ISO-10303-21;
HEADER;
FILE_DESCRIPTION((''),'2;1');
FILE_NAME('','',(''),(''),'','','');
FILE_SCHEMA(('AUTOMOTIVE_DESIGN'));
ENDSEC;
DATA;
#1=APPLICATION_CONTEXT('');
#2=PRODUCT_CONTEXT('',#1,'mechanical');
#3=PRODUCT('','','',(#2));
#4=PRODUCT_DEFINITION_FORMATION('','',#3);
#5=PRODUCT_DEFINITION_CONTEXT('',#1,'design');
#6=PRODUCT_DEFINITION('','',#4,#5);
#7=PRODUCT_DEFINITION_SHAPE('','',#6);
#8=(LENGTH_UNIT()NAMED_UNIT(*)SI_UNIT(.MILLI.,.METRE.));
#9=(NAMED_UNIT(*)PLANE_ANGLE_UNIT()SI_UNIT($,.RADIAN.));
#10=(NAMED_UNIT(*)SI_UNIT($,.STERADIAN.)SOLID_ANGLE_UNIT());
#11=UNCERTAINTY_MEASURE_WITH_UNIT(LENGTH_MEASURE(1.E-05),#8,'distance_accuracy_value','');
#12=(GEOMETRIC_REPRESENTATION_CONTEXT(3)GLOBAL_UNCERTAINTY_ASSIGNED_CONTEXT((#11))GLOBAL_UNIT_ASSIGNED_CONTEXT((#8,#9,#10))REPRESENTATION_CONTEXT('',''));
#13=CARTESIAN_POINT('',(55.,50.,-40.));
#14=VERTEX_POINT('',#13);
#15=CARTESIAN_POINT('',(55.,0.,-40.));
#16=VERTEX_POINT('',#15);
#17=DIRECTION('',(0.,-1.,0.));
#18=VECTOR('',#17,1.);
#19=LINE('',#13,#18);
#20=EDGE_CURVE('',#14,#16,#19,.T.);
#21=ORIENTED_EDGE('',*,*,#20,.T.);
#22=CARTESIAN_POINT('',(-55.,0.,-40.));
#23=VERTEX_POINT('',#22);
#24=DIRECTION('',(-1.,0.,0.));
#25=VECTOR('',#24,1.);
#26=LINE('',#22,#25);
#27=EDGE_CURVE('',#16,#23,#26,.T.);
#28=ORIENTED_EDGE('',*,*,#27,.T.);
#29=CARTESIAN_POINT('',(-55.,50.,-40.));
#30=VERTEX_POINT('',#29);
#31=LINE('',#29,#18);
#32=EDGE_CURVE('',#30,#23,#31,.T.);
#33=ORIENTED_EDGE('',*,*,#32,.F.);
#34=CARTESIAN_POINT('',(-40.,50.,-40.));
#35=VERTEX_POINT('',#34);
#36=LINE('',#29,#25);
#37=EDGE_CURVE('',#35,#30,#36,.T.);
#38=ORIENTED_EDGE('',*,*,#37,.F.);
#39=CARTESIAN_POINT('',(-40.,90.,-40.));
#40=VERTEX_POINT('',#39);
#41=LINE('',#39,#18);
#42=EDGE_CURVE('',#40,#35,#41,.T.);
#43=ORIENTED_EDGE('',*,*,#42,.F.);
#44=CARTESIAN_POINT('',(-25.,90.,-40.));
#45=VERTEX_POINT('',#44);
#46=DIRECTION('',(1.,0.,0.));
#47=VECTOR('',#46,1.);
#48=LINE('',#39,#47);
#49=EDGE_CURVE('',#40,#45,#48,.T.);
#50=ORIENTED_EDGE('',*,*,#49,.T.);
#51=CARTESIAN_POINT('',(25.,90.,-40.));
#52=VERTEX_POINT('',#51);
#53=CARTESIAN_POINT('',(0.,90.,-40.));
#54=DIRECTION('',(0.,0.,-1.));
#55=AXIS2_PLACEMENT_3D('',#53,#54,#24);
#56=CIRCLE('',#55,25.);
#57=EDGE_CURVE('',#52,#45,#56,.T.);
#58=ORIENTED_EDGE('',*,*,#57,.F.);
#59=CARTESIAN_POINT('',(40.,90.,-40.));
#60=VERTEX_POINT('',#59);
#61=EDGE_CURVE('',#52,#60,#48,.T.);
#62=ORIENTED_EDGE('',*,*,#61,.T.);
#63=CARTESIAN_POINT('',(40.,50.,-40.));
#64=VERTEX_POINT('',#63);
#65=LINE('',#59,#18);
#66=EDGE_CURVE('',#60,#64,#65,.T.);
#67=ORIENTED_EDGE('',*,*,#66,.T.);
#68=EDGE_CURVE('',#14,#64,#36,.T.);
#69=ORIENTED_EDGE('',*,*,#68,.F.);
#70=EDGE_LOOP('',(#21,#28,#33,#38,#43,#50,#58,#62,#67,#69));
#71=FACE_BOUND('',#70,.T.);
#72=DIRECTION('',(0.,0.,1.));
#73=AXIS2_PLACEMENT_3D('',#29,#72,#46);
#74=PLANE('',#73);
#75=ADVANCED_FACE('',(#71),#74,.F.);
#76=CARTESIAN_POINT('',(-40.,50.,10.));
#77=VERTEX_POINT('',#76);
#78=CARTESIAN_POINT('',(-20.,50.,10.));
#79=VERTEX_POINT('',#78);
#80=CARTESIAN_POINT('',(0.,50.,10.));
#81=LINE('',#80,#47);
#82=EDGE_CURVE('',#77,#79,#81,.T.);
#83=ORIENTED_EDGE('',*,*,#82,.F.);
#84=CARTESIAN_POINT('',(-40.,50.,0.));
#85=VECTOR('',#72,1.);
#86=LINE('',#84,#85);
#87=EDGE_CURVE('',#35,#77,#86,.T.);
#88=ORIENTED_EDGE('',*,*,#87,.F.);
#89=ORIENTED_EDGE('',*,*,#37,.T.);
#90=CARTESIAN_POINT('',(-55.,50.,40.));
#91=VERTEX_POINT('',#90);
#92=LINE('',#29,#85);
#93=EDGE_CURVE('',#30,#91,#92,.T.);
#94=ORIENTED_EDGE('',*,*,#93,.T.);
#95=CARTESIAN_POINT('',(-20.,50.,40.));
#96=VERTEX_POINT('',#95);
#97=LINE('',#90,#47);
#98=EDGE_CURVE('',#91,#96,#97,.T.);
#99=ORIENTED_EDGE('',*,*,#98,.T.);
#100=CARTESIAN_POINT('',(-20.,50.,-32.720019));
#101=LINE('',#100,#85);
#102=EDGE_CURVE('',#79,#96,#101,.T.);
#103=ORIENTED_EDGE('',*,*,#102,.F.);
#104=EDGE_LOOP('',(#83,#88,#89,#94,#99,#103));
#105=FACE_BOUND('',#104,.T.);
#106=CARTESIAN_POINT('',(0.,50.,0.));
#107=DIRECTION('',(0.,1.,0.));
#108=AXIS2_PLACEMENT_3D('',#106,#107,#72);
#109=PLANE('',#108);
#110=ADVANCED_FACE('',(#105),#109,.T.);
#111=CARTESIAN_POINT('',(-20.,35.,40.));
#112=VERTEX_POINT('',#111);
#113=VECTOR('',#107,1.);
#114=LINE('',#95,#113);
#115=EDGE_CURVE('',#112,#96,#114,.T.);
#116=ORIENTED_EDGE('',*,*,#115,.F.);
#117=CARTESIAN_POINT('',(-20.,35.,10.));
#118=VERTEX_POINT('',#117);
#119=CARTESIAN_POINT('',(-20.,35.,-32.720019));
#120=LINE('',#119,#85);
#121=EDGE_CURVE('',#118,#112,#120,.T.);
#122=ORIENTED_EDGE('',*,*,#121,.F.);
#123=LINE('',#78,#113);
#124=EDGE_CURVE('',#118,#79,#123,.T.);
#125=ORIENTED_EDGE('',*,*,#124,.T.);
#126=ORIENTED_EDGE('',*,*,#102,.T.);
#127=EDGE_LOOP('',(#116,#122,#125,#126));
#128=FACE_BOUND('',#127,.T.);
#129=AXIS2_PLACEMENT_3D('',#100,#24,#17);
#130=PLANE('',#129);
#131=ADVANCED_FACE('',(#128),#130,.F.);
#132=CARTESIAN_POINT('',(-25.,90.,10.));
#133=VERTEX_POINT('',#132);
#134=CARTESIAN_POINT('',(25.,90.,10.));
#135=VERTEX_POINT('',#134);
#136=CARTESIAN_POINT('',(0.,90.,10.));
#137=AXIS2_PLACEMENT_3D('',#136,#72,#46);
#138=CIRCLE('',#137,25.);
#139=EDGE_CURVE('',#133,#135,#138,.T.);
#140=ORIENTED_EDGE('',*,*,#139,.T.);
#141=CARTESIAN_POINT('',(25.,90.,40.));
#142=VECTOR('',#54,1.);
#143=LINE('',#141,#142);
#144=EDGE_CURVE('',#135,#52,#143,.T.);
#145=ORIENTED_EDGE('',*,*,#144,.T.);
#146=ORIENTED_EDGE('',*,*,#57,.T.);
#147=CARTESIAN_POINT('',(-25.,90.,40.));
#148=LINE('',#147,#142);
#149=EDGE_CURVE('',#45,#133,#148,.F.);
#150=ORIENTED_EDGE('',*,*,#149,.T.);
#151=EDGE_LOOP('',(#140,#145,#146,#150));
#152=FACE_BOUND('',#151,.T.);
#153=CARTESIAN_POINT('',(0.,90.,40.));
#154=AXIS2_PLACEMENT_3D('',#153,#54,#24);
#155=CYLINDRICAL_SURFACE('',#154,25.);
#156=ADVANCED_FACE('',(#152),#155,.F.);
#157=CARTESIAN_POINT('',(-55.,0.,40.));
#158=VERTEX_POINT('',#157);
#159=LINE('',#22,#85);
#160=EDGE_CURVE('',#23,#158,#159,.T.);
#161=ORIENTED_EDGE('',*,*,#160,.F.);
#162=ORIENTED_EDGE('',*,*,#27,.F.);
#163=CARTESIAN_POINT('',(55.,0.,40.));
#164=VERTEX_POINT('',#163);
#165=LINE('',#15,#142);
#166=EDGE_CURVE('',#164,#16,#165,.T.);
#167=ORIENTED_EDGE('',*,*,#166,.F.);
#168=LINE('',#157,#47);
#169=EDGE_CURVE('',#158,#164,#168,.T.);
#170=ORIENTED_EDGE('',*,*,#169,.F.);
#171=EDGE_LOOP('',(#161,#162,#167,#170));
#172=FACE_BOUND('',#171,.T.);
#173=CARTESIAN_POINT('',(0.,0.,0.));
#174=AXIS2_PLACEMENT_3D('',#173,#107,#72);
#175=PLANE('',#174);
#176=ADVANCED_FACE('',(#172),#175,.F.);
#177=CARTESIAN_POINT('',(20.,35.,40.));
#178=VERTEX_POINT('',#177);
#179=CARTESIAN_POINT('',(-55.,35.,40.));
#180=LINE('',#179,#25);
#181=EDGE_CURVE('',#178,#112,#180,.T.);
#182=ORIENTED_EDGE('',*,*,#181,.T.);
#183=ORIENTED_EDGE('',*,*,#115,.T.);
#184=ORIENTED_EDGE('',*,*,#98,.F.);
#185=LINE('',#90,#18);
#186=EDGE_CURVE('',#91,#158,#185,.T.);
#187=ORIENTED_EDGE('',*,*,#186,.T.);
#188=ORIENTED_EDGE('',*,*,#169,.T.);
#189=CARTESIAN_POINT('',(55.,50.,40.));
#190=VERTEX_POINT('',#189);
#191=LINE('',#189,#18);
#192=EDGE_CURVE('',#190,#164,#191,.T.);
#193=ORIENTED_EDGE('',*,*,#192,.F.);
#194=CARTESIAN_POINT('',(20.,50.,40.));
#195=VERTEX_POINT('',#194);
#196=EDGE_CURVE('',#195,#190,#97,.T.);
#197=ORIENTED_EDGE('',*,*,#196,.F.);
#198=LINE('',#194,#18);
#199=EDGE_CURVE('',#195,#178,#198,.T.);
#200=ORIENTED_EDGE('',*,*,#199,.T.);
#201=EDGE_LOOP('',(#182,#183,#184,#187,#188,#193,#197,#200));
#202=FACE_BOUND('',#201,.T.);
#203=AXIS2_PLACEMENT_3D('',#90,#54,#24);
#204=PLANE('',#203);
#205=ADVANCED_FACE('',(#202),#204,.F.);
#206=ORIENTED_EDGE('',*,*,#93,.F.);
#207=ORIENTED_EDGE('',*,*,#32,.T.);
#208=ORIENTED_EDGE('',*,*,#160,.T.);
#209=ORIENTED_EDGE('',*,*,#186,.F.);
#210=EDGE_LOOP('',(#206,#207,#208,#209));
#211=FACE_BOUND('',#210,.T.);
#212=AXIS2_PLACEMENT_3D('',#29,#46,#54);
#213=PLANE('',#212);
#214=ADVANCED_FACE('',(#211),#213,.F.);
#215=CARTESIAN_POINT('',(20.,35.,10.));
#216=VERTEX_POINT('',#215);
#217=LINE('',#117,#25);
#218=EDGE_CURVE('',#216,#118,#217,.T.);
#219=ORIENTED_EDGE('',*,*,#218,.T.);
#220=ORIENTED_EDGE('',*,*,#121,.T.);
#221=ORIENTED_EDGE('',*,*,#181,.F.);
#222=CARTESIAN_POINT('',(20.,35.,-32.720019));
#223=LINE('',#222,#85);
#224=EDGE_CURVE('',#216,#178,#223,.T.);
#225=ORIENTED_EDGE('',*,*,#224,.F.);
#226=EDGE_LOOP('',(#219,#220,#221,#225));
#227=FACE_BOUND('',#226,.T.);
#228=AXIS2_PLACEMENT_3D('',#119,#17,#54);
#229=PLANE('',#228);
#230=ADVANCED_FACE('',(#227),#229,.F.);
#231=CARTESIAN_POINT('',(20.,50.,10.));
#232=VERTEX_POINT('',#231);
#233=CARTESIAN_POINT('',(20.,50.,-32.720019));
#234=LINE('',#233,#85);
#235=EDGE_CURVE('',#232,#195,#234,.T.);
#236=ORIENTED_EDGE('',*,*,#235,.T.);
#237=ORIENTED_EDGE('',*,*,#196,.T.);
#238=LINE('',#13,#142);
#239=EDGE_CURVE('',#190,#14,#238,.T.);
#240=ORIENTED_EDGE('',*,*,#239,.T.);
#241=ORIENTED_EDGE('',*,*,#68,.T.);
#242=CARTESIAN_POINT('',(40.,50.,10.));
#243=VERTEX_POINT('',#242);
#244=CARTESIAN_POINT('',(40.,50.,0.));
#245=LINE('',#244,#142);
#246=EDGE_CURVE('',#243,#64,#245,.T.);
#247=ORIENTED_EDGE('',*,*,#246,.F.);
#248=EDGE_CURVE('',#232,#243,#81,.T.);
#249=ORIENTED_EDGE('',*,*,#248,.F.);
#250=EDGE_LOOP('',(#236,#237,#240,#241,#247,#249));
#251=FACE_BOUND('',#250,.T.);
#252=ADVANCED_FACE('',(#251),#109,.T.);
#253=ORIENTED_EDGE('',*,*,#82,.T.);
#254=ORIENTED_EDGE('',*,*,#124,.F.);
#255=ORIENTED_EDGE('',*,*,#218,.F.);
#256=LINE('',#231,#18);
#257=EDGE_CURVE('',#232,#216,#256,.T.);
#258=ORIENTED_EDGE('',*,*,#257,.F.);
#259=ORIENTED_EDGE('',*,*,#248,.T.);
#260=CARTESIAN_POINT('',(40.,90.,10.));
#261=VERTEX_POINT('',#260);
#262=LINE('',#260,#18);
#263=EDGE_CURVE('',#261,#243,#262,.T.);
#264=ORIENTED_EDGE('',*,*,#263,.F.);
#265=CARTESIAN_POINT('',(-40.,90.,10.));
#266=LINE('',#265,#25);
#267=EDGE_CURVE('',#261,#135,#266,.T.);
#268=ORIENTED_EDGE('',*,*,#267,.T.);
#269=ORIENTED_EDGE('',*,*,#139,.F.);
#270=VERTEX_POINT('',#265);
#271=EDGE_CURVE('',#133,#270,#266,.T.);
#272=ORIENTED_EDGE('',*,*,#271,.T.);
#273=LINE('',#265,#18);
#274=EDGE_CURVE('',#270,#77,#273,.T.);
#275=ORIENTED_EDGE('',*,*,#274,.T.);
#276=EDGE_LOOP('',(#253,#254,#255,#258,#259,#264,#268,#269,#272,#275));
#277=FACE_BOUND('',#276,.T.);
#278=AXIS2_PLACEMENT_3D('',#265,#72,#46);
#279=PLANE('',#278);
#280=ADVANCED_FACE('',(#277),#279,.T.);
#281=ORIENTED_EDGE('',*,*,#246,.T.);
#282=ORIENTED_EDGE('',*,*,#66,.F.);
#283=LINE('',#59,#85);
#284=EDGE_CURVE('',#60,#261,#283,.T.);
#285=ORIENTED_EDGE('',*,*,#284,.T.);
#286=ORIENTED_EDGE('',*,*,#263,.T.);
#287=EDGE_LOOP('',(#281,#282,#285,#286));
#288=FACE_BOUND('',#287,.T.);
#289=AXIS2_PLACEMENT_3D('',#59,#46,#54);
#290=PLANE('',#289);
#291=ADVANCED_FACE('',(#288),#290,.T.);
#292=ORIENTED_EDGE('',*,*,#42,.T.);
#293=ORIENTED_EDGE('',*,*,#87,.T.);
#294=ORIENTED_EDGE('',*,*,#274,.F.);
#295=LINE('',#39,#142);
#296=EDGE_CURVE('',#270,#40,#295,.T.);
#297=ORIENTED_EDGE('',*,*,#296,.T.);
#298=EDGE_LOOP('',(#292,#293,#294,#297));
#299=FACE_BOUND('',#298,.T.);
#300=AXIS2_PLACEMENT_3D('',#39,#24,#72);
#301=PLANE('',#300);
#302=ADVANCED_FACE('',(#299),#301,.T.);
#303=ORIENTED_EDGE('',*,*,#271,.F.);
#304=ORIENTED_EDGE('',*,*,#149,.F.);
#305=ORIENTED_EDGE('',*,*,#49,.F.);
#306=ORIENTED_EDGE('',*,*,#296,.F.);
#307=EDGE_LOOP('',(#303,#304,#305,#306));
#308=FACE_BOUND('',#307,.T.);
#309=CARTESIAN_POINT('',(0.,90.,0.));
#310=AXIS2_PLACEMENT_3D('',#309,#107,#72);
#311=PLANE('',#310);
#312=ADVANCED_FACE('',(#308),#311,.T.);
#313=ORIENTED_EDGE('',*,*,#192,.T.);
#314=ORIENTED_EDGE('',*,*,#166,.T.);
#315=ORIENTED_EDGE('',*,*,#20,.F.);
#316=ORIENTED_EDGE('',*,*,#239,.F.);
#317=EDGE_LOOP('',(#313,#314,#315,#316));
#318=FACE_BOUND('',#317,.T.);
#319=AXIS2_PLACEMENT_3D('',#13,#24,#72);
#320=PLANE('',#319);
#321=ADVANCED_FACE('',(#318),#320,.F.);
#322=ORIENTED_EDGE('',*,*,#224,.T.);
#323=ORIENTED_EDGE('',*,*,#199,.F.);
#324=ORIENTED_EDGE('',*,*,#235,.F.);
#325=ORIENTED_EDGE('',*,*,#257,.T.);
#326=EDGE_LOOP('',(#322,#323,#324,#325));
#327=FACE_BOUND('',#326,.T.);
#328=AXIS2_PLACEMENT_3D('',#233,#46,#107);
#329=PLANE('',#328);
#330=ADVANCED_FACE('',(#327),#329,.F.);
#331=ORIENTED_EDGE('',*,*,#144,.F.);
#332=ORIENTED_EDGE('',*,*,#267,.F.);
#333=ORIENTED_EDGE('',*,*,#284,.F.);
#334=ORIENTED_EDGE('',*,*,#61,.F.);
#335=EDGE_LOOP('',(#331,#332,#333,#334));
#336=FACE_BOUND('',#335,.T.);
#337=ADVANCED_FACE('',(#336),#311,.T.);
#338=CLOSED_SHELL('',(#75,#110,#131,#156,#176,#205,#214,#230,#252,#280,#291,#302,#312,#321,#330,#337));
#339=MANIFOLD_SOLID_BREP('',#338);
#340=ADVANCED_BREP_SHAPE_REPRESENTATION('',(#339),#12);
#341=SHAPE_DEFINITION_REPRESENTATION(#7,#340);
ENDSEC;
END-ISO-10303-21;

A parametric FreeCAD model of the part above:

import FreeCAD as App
import Part
import Sketcher
from FreeCAD import Vector
Q = App.Units.Quantity


def add_polygon(sketch, points):
    """Adds a closed chain of lines whose ends are joined by coincident constraints."""
    first, n = sketch.GeometryCount, len(points)
    for a, b in zip(points, points[1:] + points[:1]):
        sketch.addGeometry(Part.LineSegment(App.Vector(*a, 0), App.Vector(*b, 0)), False)
    for i in range(n):
        sketch.addConstraint(Sketcher.Constraint("Coincident", first + i, 2, first + (i + 1) % n, 1))

doc = App.newDocument("Part")
params = doc.addObject("Spreadsheet::Sheet", "Params")
for row, (alias, value) in enumerate([
    ("sketch1_width", "110 mm"),
    ("sketch1_height", "80 mm"),
    ("pad1_length", "50 mm"),
    ("sketch2_width", "80 mm"),
    ("sketch2_height", "50 mm"),
    ("pad2_length", "90 mm"),
    ("sketch3_diameter", "50 mm"),
    ("sketch4_width", "40 mm"),
    ("sketch4_height", "15 mm"),
    ("pocket2_length", "133.382023 mm"),
    ("pocket2_length2", "30 mm"),
], start=1):
    params.set(f"A{row}", alias)
    params.set(f"B{row}", "=" + value)
    params.setAlias(f"B{row}", alias)

body = doc.addObject("PartDesign::Body", "Body")

# Sketch on XZ plane
sketch1 = doc.addObject("Sketcher::SketchObject", "Sketch")
body.addObject(sketch1)
sketch1.AttachmentSupport = (doc.XZ_Plane, [""])
sketch1.MapMode = "FlatFace"
add_polygon(sketch1, [(-55, -40), (-55, 40), (55, 40), (55, -40)])  # lines 0-3
sketch1.addConstraint([
    Sketcher.Constraint("Vertical", 0),
    Sketcher.Constraint("Horizontal", 1),
    Sketcher.Constraint("Vertical", 2),
    Sketcher.Constraint("Horizontal", 3),
    Sketcher.Constraint("Symmetric", 0, 2, 2, 2, -1, 1),
    Sketcher.Constraint("DistanceX", 1, 1, 1, 2, Q("110 mm")),
    Sketcher.Constraint("DistanceY", 0, 1, 0, 2, Q("80 mm")),
])
sketch1.setExpression("Constraints[9]", "Params.sketch1_width")
sketch1.setExpression("Constraints[10]", "Params.sketch1_height")
pad1 = doc.addObject("PartDesign::Pad", "Pad")
body.addObject(pad1)
pad1.Profile = sketch1
pad1.setExpression("Length", "Params.pad1_length")
pad1.Reversed = True

# Sketch on XZ plane
sketch2 = doc.addObject("Sketcher::SketchObject", "Sketch001")
body.addObject(sketch2)
sketch2.AttachmentSupport = (doc.XZ_Plane, [""])
sketch2.MapMode = "FlatFace"
add_polygon(sketch2, [(-40, 10), (-40, -40), (40, -40), (40, 10)])  # lines 0-3
sketch2.addConstraint([
    Sketcher.Constraint("Vertical", 0),
    Sketcher.Constraint("Horizontal", 1),
    Sketcher.Constraint("Vertical", 2),
    Sketcher.Constraint("Horizontal", 3),
    Sketcher.Constraint("DistanceX", 1, 1, 1, 2, Q("80 mm")),
    Sketcher.Constraint("DistanceY", 0, 2, 0, 1, Q("50 mm")),
    Sketcher.Constraint("DistanceX", 0, 2, -1, 1, Q("40 mm")),
    Sketcher.Constraint("DistanceY", 0, 2, -1, 1, Q("40 mm")),
])
sketch2.setExpression("Constraints[8]", "Params.sketch2_width")
sketch2.setExpression("Constraints[9]", "Params.sketch2_height")
pad2 = doc.addObject("PartDesign::Pad", "Pad001")
body.addObject(pad2)
pad2.Profile = sketch2
pad2.setExpression("Length", "Params.pad2_length")
pad2.Reversed = True

# Sketch on XY plane
sketch3 = doc.addObject("Sketcher::SketchObject", "Sketch002")
body.addObject(sketch3)
sketch3.AttachmentSupport = (doc.XY_Plane, [""])
sketch3.MapMode = "FlatFace"
sketch3.AttachmentOffset = App.Placement(Vector(0, 0, -40), App.Rotation())
sketch3.addGeometry(Part.Circle(Vector(0, 90, 0), Vector(0, 0, 1), 25), False)
sketch3.addConstraint([
    Sketcher.Constraint("PointOnObject", 0, 3, -2),
    Sketcher.Constraint("Diameter", 0, Q("50 mm")),
    Sketcher.Constraint("DistanceY", -1, 1, 0, 3, Q("90 mm")),
])
sketch3.setExpression("Constraints[1]", "Params.sketch3_diameter")
pocket1 = doc.addObject("PartDesign::Pocket", "Pocket")
body.addObject(pocket1)
pocket1.Profile = sketch3
pocket1.Type = "ThroughAll"
pocket1.Reversed = True

# Sketch on XY plane
sketch4 = doc.addObject("Sketcher::SketchObject", "Sketch003")
body.addObject(sketch4)
sketch4.AttachmentSupport = (doc.XY_Plane, [""])
sketch4.MapMode = "FlatFace"
sketch4.AttachmentOffset = App.Placement(Vector(0, 0, 40), App.Rotation())
add_polygon(sketch4, [(-20, 50), (-20, 35), (20, 35), (20, 50)])  # lines 0-3
sketch4.addConstraint([
    Sketcher.Constraint("Vertical", 0),
    Sketcher.Constraint("Horizontal", 1),
    Sketcher.Constraint("Vertical", 2),
    Sketcher.Constraint("Horizontal", 3),
    Sketcher.Constraint("DistanceX", 1, 1, 1, 2, Q("40 mm")),
    Sketcher.Constraint("DistanceY", 0, 2, 0, 1, Q("15 mm")),
    Sketcher.Constraint("DistanceX", 0, 2, -1, 1, Q("20 mm")),
    Sketcher.Constraint("DistanceY", -1, 1, 0, 2, Q("35 mm")),
])
sketch4.setExpression("Constraints[8]", "Params.sketch4_width")
sketch4.setExpression("Constraints[9]", "Params.sketch4_height")
pocket2 = doc.addObject("PartDesign::Pocket", "Pocket001")
body.addObject(pocket2)
pocket2.Profile = sketch4
pocket2.Type = "TwoLengths"
pocket2.setExpression("Length", "Params.pocket2_length")
pocket2.setExpression("Length2", "Params.pocket2_length2")
pocket2.Reversed = True

doc.recompute()
